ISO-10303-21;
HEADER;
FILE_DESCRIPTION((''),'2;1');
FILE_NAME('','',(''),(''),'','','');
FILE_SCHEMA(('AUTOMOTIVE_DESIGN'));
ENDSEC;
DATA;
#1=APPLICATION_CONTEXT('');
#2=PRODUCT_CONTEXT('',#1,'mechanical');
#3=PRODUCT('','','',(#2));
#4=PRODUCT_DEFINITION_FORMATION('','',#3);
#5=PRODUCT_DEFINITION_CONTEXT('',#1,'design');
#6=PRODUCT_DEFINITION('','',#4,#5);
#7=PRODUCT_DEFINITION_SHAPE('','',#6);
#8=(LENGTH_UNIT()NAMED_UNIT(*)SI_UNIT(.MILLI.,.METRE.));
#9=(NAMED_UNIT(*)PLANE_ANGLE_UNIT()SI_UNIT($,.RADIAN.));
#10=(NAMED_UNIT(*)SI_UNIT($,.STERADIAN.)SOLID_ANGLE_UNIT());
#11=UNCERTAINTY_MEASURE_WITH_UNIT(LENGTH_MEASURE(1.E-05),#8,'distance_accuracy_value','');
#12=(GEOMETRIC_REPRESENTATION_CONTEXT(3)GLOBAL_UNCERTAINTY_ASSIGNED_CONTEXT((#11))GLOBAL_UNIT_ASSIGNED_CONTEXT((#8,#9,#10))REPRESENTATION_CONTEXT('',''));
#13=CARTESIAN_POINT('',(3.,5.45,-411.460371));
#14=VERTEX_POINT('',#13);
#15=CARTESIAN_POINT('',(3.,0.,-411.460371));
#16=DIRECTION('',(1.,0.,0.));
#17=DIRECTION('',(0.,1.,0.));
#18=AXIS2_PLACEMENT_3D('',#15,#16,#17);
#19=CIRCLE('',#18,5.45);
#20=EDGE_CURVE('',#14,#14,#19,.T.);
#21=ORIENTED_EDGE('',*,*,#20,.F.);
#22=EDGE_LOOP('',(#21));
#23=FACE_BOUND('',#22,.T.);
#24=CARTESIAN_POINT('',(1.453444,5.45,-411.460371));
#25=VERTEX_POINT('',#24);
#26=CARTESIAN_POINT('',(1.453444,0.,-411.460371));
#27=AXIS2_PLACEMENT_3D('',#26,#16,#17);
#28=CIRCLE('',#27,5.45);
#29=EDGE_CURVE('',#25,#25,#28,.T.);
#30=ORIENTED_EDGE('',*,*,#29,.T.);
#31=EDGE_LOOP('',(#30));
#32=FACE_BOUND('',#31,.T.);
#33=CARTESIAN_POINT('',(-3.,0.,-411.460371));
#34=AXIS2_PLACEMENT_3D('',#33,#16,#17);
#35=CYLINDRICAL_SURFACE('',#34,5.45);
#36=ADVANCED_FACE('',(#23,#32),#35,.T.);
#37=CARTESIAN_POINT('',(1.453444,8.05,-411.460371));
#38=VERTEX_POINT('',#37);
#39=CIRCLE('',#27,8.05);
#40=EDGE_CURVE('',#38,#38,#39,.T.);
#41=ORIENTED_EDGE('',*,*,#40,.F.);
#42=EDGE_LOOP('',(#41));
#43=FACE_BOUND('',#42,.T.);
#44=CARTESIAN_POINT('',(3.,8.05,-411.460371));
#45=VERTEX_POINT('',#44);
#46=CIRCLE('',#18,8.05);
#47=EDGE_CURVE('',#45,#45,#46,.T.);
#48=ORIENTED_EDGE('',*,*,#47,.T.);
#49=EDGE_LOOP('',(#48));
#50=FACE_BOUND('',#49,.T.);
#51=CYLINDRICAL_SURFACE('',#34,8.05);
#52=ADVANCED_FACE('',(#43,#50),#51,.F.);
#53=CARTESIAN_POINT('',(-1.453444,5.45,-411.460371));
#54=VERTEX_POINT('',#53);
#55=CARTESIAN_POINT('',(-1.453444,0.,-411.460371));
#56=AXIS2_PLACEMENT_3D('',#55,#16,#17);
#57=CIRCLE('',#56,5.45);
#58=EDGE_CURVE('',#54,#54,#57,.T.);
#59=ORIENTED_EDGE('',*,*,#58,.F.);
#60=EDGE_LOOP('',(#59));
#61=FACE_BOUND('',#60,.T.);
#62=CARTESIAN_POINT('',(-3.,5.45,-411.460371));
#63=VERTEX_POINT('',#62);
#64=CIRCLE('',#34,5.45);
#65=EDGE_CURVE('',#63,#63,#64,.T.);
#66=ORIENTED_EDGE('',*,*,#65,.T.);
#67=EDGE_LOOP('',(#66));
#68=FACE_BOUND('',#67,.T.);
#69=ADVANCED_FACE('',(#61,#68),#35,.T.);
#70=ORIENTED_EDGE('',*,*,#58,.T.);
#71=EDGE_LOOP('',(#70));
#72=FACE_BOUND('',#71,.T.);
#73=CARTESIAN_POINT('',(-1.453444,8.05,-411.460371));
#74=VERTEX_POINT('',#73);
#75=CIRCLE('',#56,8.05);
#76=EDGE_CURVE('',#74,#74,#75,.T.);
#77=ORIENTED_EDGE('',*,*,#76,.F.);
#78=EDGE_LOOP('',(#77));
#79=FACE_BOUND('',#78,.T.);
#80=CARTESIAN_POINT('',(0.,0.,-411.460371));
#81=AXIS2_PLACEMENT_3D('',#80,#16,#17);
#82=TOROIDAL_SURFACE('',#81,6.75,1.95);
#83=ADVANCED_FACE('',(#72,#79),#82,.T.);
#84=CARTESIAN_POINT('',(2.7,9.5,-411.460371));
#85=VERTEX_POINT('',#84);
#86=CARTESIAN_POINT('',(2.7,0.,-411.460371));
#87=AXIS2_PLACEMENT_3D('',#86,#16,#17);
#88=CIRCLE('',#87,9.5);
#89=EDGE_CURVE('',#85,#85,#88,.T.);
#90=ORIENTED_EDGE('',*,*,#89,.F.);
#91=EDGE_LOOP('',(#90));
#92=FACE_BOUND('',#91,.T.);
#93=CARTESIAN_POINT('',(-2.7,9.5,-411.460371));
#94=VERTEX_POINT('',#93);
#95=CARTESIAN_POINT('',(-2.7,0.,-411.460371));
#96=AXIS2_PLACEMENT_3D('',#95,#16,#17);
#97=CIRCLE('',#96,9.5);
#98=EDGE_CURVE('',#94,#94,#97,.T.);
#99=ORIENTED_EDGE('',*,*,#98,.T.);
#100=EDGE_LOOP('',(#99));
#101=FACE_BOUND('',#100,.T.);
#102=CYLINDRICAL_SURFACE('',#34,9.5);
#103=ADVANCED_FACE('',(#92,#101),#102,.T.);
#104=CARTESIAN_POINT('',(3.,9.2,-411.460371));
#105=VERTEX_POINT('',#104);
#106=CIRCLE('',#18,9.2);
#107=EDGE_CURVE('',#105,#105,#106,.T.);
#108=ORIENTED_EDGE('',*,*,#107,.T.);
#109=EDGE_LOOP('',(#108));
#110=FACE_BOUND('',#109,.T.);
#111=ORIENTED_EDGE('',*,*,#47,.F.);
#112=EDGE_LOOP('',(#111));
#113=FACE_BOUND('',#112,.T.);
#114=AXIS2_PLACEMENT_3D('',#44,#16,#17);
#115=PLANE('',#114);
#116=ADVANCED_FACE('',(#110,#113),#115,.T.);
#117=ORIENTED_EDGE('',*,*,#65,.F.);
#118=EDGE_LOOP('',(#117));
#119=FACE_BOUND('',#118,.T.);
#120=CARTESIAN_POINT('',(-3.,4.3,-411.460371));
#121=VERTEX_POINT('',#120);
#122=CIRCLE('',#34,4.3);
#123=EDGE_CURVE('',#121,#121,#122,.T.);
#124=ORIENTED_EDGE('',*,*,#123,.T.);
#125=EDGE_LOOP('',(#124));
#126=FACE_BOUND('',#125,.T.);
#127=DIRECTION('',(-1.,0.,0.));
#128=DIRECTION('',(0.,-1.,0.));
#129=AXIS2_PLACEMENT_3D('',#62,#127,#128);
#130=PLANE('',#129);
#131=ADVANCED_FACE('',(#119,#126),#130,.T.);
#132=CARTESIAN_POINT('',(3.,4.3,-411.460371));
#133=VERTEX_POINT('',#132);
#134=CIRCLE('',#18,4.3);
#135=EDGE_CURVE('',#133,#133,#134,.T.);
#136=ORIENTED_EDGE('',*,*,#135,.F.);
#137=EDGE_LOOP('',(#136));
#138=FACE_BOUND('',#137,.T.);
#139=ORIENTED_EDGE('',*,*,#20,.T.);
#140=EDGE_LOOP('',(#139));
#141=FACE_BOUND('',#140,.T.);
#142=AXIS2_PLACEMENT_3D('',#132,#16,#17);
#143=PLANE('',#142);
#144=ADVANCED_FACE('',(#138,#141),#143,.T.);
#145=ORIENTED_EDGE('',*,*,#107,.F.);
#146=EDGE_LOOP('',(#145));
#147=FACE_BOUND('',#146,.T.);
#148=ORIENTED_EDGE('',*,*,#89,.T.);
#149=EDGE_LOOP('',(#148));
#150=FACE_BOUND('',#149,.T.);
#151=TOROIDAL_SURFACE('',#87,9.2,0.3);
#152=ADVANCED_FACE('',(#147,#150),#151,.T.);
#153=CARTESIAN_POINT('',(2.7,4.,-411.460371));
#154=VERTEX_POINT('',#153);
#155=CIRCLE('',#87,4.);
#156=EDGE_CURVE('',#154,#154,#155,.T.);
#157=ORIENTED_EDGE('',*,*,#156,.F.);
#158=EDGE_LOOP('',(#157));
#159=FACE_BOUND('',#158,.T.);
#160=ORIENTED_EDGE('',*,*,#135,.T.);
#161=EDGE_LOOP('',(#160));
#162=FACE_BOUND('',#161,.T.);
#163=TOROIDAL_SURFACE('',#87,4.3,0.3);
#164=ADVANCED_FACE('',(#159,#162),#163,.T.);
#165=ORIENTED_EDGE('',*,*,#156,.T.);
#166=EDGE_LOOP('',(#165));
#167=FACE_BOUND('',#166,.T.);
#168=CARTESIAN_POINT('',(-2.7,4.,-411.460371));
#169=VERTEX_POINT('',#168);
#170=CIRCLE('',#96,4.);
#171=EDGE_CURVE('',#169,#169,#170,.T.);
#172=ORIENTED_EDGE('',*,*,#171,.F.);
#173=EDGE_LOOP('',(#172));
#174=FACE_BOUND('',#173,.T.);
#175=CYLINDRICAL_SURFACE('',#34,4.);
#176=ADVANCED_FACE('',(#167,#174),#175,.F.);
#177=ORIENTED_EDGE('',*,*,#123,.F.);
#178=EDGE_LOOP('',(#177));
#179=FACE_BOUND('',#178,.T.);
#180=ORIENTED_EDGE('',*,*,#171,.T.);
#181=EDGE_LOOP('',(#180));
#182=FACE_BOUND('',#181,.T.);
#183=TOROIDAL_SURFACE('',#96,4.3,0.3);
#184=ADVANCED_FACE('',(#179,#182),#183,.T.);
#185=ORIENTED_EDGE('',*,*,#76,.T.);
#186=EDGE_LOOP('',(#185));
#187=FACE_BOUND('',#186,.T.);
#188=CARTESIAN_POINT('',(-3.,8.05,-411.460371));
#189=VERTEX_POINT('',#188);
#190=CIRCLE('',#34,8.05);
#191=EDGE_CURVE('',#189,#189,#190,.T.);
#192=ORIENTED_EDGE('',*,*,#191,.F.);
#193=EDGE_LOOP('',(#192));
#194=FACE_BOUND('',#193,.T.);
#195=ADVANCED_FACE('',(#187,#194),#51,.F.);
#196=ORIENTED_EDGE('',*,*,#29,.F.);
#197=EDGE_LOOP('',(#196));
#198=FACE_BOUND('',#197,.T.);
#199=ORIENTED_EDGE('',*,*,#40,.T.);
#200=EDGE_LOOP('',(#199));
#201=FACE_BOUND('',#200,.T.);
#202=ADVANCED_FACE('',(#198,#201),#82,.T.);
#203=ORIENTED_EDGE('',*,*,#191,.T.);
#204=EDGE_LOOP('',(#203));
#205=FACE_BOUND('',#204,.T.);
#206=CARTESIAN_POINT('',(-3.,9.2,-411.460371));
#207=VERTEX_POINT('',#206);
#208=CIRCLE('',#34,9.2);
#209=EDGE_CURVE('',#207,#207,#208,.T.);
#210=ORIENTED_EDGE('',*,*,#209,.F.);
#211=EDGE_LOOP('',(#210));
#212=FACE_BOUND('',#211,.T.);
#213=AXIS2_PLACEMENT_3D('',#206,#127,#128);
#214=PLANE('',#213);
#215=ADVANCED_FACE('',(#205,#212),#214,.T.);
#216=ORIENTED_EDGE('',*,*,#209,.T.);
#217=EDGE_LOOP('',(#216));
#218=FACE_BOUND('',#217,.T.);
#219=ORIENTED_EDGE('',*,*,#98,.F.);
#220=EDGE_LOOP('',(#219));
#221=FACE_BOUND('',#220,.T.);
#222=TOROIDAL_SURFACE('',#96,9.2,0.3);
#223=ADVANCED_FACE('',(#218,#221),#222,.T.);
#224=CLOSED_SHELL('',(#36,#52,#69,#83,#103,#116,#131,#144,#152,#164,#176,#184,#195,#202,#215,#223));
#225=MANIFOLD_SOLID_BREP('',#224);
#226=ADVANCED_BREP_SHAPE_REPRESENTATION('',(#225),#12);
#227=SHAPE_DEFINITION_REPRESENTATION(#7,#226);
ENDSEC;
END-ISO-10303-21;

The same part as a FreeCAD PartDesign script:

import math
import FreeCAD as App
import Part
import Sketcher

V = App.Vector
Q = App.Units.Quantity

doc = App.newDocument("Part")
body = doc.addObject("PartDesign::Body", "Body")

# Sketch on XY plane
sketch1 = doc.addObject("Sketcher::SketchObject", "Sketch")
body.addObject(sketch1)
sketch1.AttachmentSupport = (doc.XY_Plane, [""])
sketch1.MapMode = "FlatFace"
sketch1.AttachmentOffset = App.Placement(V(0, 0, -411.460371), App.Rotation())
sketch1.addGeometry([
    Part.LineSegment(V(-2.7, 4, 0), V(2.7, 4, 0)),  # 0
    Part.ArcOfCircle(Part.Circle(V(2.7, 4.3, 0), V(0, 0, 1), 0.3), math.radians(-90), math.radians(0)),  # 1
    Part.LineSegment(V(3, 4.3, 0), V(3, 5.45, 0)),  # 2
    Part.LineSegment(V(3, 5.45, 0), V(1.453444, 5.45, 0)),  # 3
    Part.ArcOfCircle(Part.Circle(V(0, 6.75, 0), V(0, 0, 1), 1.95), math.radians(-41.810315), math.radians(41.810315)),  # 4
    Part.LineSegment(V(1.453444, 8.05, 0), V(3, 8.05, 0)),  # 5
    Part.LineSegment(V(3, 8.05, 0), V(3, 9.2, 0)),  # 6
    Part.ArcOfCircle(Part.Circle(V(2.7, 9.2, 0), V(0, 0, 1), 0.3), math.radians(0), math.radians(90)),  # 7
    Part.LineSegment(V(2.7, 9.5, 0), V(-2.7, 9.5, 0)),  # 8
    Part.ArcOfCircle(Part.Circle(V(-2.7, 9.2, 0), V(0, 0, 1), 0.3), math.radians(90), math.radians(180)),  # 9
    Part.LineSegment(V(-3, 9.2, 0), V(-3, 8.05, 0)),  # 10
    Part.LineSegment(V(-3, 8.05, 0), V(-1.453444, 8.05, 0)),  # 11
    Part.ArcOfCircle(Part.Circle(V(0, 6.75, 0), V(0, 0, 1), 1.95), math.radians(138.189685), math.radians(221.810315)),  # 12
    Part.LineSegment(V(-1.453444, 5.45, 0), V(-3, 5.45, 0)),  # 13
    Part.LineSegment(V(-3, 5.45, 0), V(-3, 4.3, 0)),  # 14
    Part.ArcOfCircle(Part.Circle(V(-2.7, 4.3, 0), V(0, 0, 1), 0.3), math.radians(-180), math.radians(-90)),  # 15
], False)
sketch1.addConstraint([
    Sketcher.Constraint("Tangent", 0, 2, 1, 1),
    Sketcher.Constraint("Tangent", 1, 2, 2, 1),
    Sketcher.Constraint("Coincident", 2, 2, 3, 1),
    Sketcher.Constraint("Coincident", 3, 2, 4, 1),
    Sketcher.Constraint("Coincident", 4, 2, 5, 1),
    Sketcher.Constraint("Coincident", 5, 2, 6, 1),
    Sketcher.Constraint("Tangent", 6, 2, 7, 1),
    Sketcher.Constraint("Tangent", 7, 2, 8, 1),
    Sketcher.Constraint("Tangent", 8, 2, 9, 1),
    Sketcher.Constraint("Tangent", 9, 2, 10, 1),
    Sketcher.Constraint("Coincident", 10, 2, 11, 1),
    Sketcher.Constraint("Coincident", 11, 2, 12, 1),
    Sketcher.Constraint("Coincident", 12, 2, 13, 1),
    Sketcher.Constraint("Coincident", 13, 2, 14, 1),
    Sketcher.Constraint("Tangent", 14, 2, 15, 1),
    Sketcher.Constraint("Tangent", 15, 2, 0, 1),
    Sketcher.Constraint("Horizontal", 0),
    Sketcher.Constraint("Vertical", 2),
    Sketcher.Constraint("Horizontal", 3),
    Sketcher.Constraint("Horizontal", 5),
    Sketcher.Constraint("Vertical", 6),
    Sketcher.Constraint("Horizontal", 8),
    Sketcher.Constraint("Vertical", 10),
    Sketcher.Constraint("Horizontal", 11),
    Sketcher.Constraint("Horizontal", 13),
    Sketcher.Constraint("Vertical", 14),
    Sketcher.Constraint("Coincident", 12, 3, 4, 3),
    Sketcher.Constraint("Equal", 1, 7),
    Sketcher.Constraint("Equal", 7, 9),
    Sketcher.Constraint("Equal", 4, 12),
    Sketcher.Constraint("Equal", 9, 15),
    Sketcher.Constraint("Symmetric", 5, 2, 10, 2, -2),
    Sketcher.Constraint("Symmetric", 3, 2, 12, 2, -2),
    Sketcher.Constraint("Vertical", 1, 3, 7, 3),
    Sketcher.Constraint("Vertical", 9, 3, 15, 3),
    Sketcher.Constraint("Vertical", 3, 2, 4, 2),
    Sketcher.Constraint("Equal", 2, 6),
    Sketcher.Constraint("Radius", 1, Q("0.3 mm")),
    Sketcher.Constraint("Radius", 4, Q("1.95 mm")),
    Sketcher.Constraint("DistanceX", 0, 1, 0, 2, Q("5.4 mm")),
    Sketcher.Constraint("DistanceY", -1, 1, 0, 2, Q("4 mm")),
    Sketcher.Constraint("DistanceY", 2, 1, 2, 2, Q("1.15 mm")),
    Sketcher.Constraint("DistanceY", -1, 1, 7, 3, Q("9.2 mm")),
])
revolution = doc.addObject("PartDesign::Revolution", "Revolution")
body.addObject(revolution)
revolution.Profile = sketch1
revolution.ReferenceAxis = (sketch1, ["H_Axis"])
revolution.Angle = 360

doc.recompute()
